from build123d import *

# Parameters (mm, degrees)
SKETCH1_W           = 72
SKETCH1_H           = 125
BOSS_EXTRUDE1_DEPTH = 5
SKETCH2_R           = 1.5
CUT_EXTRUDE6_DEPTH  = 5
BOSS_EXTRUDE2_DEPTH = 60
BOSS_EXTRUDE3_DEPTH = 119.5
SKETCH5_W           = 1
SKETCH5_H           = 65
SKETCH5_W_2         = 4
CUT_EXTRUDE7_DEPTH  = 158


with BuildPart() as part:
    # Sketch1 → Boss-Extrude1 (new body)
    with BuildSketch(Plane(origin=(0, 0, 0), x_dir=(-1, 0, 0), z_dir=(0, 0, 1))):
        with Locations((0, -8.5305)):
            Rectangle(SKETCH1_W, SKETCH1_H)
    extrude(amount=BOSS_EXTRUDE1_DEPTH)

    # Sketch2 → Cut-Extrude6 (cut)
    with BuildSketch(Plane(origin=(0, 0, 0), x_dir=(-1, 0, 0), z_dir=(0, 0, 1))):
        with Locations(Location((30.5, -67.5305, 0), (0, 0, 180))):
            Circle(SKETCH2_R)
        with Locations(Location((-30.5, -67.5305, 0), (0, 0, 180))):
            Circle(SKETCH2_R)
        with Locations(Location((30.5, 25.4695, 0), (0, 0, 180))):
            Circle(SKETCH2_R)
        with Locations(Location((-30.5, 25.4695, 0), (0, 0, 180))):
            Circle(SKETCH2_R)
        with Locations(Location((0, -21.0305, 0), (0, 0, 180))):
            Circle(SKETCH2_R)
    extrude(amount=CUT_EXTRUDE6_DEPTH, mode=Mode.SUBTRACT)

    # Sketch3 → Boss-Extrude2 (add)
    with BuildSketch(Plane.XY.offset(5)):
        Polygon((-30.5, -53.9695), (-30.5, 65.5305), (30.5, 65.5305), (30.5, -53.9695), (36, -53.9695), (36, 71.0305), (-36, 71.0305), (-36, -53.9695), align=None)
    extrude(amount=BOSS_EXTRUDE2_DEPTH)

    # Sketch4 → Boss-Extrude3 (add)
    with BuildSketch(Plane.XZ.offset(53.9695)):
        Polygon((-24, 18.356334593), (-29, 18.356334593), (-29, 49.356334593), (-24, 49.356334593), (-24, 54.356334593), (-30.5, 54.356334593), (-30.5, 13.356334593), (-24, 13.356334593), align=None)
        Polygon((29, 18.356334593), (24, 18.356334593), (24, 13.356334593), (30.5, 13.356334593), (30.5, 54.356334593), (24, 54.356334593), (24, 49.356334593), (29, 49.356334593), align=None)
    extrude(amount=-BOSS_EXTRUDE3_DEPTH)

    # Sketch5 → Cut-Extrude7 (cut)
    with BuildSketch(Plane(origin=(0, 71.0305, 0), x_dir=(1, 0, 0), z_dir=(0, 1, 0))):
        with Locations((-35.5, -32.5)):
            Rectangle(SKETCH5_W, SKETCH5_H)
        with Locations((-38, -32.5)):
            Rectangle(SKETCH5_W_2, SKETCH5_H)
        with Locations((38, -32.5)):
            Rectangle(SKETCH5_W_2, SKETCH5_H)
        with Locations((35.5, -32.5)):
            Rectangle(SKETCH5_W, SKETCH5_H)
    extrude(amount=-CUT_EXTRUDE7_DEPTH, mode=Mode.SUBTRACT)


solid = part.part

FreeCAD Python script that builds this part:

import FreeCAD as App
import Part
import Sketcher

V = App.Vector

doc = App.newDocument("Part")
body = doc.addObject("PartDesign::Body", "Body")

sketch1 = body.newObject("Sketcher::SketchObject", "Sketch")
sketch1.AttachmentSupport = (doc.getObject("XY_Plane"), [""])
sketch1.MapMode = "FlatFace"
sketch1.addGeometry([
    Part.LineSegment(V(36, -54, 0), V(36, 71, 0)),
    Part.LineSegment(V(36, 71, 0), V(-36, 71, 0)),
    Part.LineSegment(V(-36, 71, 0), V(-36, -54, 0)),
    Part.LineSegment(V(-36, -54, 0), V(36, -54, 0)),
], False)
sketch1.addConstraint([
    Sketcher.Constraint("Coincident", 0, 2, 1, 1),
    Sketcher.Constraint("Coincident", 1, 2, 2, 1),
    Sketcher.Constraint("Coincident", 2, 2, 3, 1),
    Sketcher.Constraint("Coincident", 3, 2, 0, 1),
    Sketcher.Constraint("Vertical", 0),
    Sketcher.Constraint("Horizontal", 1),
    Sketcher.Constraint("Vertical", 2),
    Sketcher.Constraint("Horizontal", 3),
    Sketcher.Constraint("DistanceX", 1, 2, 1, 1, 72.0),
    Sketcher.Constraint("DistanceY", 0, 1, 0, 2, 125.0),
    Sketcher.Constraint("DistanceX", -1, 1, 0, 2, 36.0),
    Sketcher.Constraint("DistanceY", -1, 1, 0, 2, 71.0305),
])
pad1 = body.newObject("PartDesign::Pad", "Pad")
pad1.Profile = sketch1
pad1.Length = 5

sketch2 = body.newObject("Sketcher::SketchObject", "Sketch001")
sketch2.AttachmentSupport = (doc.getObject("XY_Plane"), [""])
sketch2.MapMode = "FlatFace"
sketch2.addGeometry([
    Part.Circle(V(-30.5, 67.5, 0), V(0, 0, 1), 1.5),
    Part.Circle(V(30.5, 67.5, 0), V(0, 0, 1), 1.5),
    Part.Circle(V(-30.5, -25.5, 0), V(0, 0, 1), 1.5),
    Part.Circle(V(30.5, -25.5, 0), V(0, 0, 1), 1.5),
    Part.Circle(V(0, 21, 0), V(0, 0, 1), 1.5),
], False)
sketch2.addConstraint([
    Sketcher.Constraint("Equal", 0, 1),
    Sketcher.Constraint("Equal", 1, 2),
    Sketcher.Constraint("Equal", 2, 3),
    Sketcher.Constraint("Equal", 3, 4),
    Sketcher.Constraint("Symmetric", 0, 3, 1, 3, -2),
    Sketcher.Constraint("Symmetric", 2, 3, 3, 3, -2),
    Sketcher.Constraint("PointOnObject", 4, 3, -2),
    Sketcher.Constraint("Vertical", 0, 3, 2, 3),
    Sketcher.Constraint("Diameter", 0, 3.0),
    Sketcher.Constraint("DistanceX", 0, 3, 1, 3, 61.0),
    Sketcher.Constraint("DistanceY", 2, 3, 0, 3, 93.0),
    Sketcher.Constraint("DistanceY", 4, 3, 0, 3, 46.5),
    Sketcher.Constraint("DistanceY", -1, 1, 0, 3, 67.5305),
])
pocket1 = body.newObject("PartDesign::Pocket", "Pocket")
pocket1.Profile = sketch2
pocket1.Length = 5
pocket1.Reversed = True

sketch3 = body.newObject("Sketcher::SketchObject", "Sketch002")
sketch3.AttachmentSupport = (doc.getObject("XY_Plane"), [""])
sketch3.MapMode = "FlatFace"
sketch3.AttachmentOffset = App.Placement(V(0, 0, 5), App.Rotation())
sketch3.addGeometry([
    Part.LineSegment(V(-30, -54, 0), V(-30, 66, 0)),
    Part.LineSegment(V(-30, 66, 0), V(30, 66, 0)),
    Part.LineSegment(V(30, 66, 0), V(30, -54, 0)),
    Part.LineSegment(V(30, -54, 0), V(36, -54, 0)),
    Part.LineSegment(V(36, -54, 0), V(36, 71, 0)),
    Part.LineSegment(V(36, 71, 0), V(-36, 71, 0)),
    Part.LineSegment(V(-36, 71, 0), V(-36, -54, 0)),
    Part.LineSegment(V(-36, -54, 0), V(-30, -54, 0)),
], False)
sketch3.addConstraint([
    Sketcher.Constraint("Coincident", 0, 2, 1, 1),
    Sketcher.Constraint("Coincident", 1, 2, 2, 1),
    Sketcher.Constraint("Coincident", 2, 2, 3, 1),
    Sketcher.Constraint("Coincident", 3, 2, 4, 1),
    Sketcher.Constraint("Coincident", 4, 2, 5, 1),
    Sketcher.Constraint("Coincident", 5, 2, 6, 1),
    Sketcher.Constraint("Coincident", 6, 2, 7, 1),
    Sketcher.Constraint("Coincident", 7, 2, 0, 1),
    Sketcher.Constraint("Vertical", 0),
    Sketcher.Constraint("Horizontal", 1),
    Sketcher.Constraint("Vertical", 2),
    Sketcher.Constraint("Horizontal", 3),
    Sketcher.Constraint("Vertical", 4),
    Sketcher.Constraint("Horizontal", 5),
    Sketcher.Constraint("Vertical", 6),
    Sketcher.Constraint("Horizontal", 7),
    Sketcher.Constraint("Symmetric", 3, 2, 6, 2, -2),
    Sketcher.Constraint("Equal", 3, 7),
    Sketcher.Constraint("DistanceX", 1, 1, 1, 2, 61.0),
    Sketcher.Constraint("DistanceX", 5, 2, 5, 1, 72.0),
    Sketcher.Constraint("DistanceY", 4, 1, 4, 2, 125.0),
    Sketcher.Constraint("DistanceY", 0, 1, 0, 2, 119.5),
    Sketcher.Constraint("DistanceY", -1, 1, 0, 2, 65.5305),
])
pad2 = body.newObject("PartDesign::Pad", "Pad001")
pad2.Profile = sketch3
pad2.Length = 60

sketch4 = body.newObject("Sketcher::SketchObject", "Sketch003")
sketch4.AttachmentSupport = (doc.getObject("XZ_Plane"), [""])
sketch4.MapMode = "FlatFace"
sketch4.AttachmentOffset = App.Placement(V(0, 0, 53.9695), App.Rotation())
sketch4.addGeometry([
    Part.LineSegment(V(-24, 18, 0), V(-29, 18, 0)),
    Part.LineSegment(V(-29, 18, 0), V(-29, 49, 0)),
    Part.LineSegment(V(-29, 49, 0), V(-24, 49, 0)),
    Part.LineSegment(V(-24, 49, 0), V(-24, 54, 0)),
    Part.LineSegment(V(-24, 54, 0), V(-30, 54, 0)),
    Part.LineSegment(V(-30, 54, 0), V(-30, 13, 0)),
    Part.LineSegment(V(-30, 13, 0), V(-24, 13, 0)),
    Part.LineSegment(V(-24, 13, 0), V(-24, 18, 0)),
    Part.LineSegment(V(29, 18, 0), V(24, 18, 0)),
    Part.LineSegment(V(24, 18, 0), V(24, 13, 0)),
    Part.LineSegment(V(24, 13, 0), V(30, 13, 0)),
    Part.LineSegment(V(30, 13, 0), V(30, 54, 0)),
    Part.LineSegment(V(30, 54, 0), V(24, 54, 0)),
    Part.LineSegment(V(24, 54, 0), V(24, 49, 0)),
    Part.LineSegment(V(24, 49, 0), V(29, 49, 0)),
    Part.LineSegment(V(29, 49, 0), V(29, 18, 0)),
], False)
sketch4.addConstraint([
    Sketcher.Constraint("Coincident", 0, 2, 1, 1),
    Sketcher.Constraint("Coincident", 1, 2, 2, 1),
    Sketcher.Constraint("Coincident", 2, 2, 3, 1),
    Sketcher.Constraint("Coincident", 3, 2, 4, 1),
    Sketcher.Constraint("Coincident", 4, 2, 5, 1),
    Sketcher.Constraint("Coincident", 5, 2, 6, 1),
    Sketcher.Constraint("Coincident", 6, 2, 7, 1),
    Sketcher.Constraint("Coincident", 7, 2, 0, 1),
    Sketcher.Constraint("Coincident", 8, 2, 9, 1),
    Sketcher.Constraint("Coincident", 9, 2, 10, 1),
    Sketcher.Constraint("Coincident", 10, 2, 11, 1),
    Sketcher.Constraint("Coincident", 11, 2, 12, 1),
    Sketcher.Constraint("Coincident", 12, 2, 13, 1),
    Sketcher.Constraint("Coincident", 13, 2, 14, 1),
    Sketcher.Constraint("Coincident", 14, 2, 15, 1),
    Sketcher.Constraint("Coincident", 15, 2, 8, 1),
    Sketcher.Constraint("Horizontal", 0),
    Sketcher.Constraint("Vertical", 1),
    Sketcher.Constraint("Horizontal", 2),
    Sketcher.Constraint("Vertical", 3),
    Sketcher.Constraint("Horizontal", 4),
    Sketcher.Constraint("Vertical", 5),
    Sketcher.Constraint("Horizontal", 6),
    Sketcher.Constraint("Vertical", 7),
    Sketcher.Constraint("Horizontal", 8),
    Sketcher.Constraint("Vertical", 9),
    Sketcher.Constraint("Horizontal", 10),
    Sketcher.Constraint("Vertical", 11),
    Sketcher.Constraint("Horizontal", 12),
    Sketcher.Constraint("Vertical", 13),
    Sketcher.Constraint("Horizontal", 14),
    Sketcher.Constraint("Vertical", 15),
    Sketcher.Constraint("Symmetric", 7, 2, 8, 2, -2),
    Sketcher.Constraint("Symmetric", 5, 2, 10, 2, -2),
    Sketcher.Constraint("Symmetric", 3, 2, 12, 2, -2),
    Sketcher.Constraint("Symmetric", 1, 2, 14, 2, -2),
    Sketcher.Constraint("Vertical", 3, 2, 6, 2),
    Sketcher.Constraint("Equal", 14, 3),
    Sketcher.Constraint("Equal", 3, 7),
    Sketcher.Constraint("DistanceX", 0, 2, 0, 1, 5.0),
    Sketcher.Constraint("DistanceY", 1, 1, 1, 2, 31.0),
    Sketcher.Constraint("DistanceX", 4, 2, 4, 1, 6.5),
    Sketcher.Constraint("DistanceX", 0, 2, -1, 1, 29.0),
    Sketcher.Constraint("DistanceY", -1, 1, 0, 2, 18.356335),
])
pad3 = body.newObject("PartDesign::Pad", "Pad002")
pad3.Profile = sketch4
pad3.Length = 119.5
pad3.Reversed = True

sketch5 = body.newObject("Sketcher::SketchObject", "Sketch004")
sketch5.AttachmentSupport = (doc.getObject("XZ_Plane"), [""])
sketch5.MapMode = "FlatFace"
sketch5.AttachmentOffset = App.Placement(V(0, 0, -71.0305), App.Rotation())
sketch5.addGeometry([
    Part.LineSegment(V(-35, 65, 0), V(-35, 0, 0)),
    Part.LineSegment(V(-35, 0, 0), V(-40, 0, 0)),
    Part.LineSegment(V(-40, 0, 0), V(-40, 65, 0)),
    Part.LineSegment(V(-40, 65, 0), V(-35, 65, 0)),
    Part.LineSegment(V(40, 65, 0), V(40, 0, 0)),
    Part.LineSegment(V(40, 0, 0), V(35, 0, 0)),
    Part.LineSegment(V(35, 0, 0), V(35, 65, 0)),
    Part.LineSegment(V(35, 65, 0), V(40, 65, 0)),
], False)
sketch5.addConstraint([
    Sketcher.Constraint("Coincident", 0, 2, 1, 1),
    Sketcher.Constraint("Coincident", 1, 2, 2, 1),
    Sketcher.Constraint("Coincident", 2, 2, 3, 1),
    Sketcher.Constraint("Coincident", 3, 2, 0, 1),
    Sketcher.Constraint("Coincident", 4, 2, 5, 1),
    Sketcher.Constraint("Coincident", 5, 2, 6, 1),
    Sketcher.Constraint("Coincident", 6, 2, 7, 1),
    Sketcher.Constraint("Coincident", 7, 2, 4, 1),
    Sketcher.Constraint("Vertical", 0),
    Sketcher.Constraint("Horizontal", 1),
    Sketcher.Constraint("Vertical", 2),
    Sketcher.Constraint("Horizontal", 3),
    Sketcher.Constraint("Vertical", 4),
    Sketcher.Constraint("Horizontal", 5),
    Sketcher.Constraint("Vertical", 6),
    Sketcher.Constraint("Horizontal", 7),
    Sketcher.Constraint("Symmetric", 1, 2, 4, 2, -1, 1),
    Sketcher.Constraint("Symmetric", 0, 2, 5, 2, -2),
    Sketcher.Constraint("Horizontal", 3, 2, 6, 2),
    Sketcher.Constraint("DistanceX", 1, 2, 1, 1, 5.0),
    Sketcher.Constraint("DistanceY", 0, 2, 0, 1, 65.0),
    Sketcher.Constraint("DistanceX", 0, 2, -1, 1, 35.0),
])
pocket2 = body.newObject("PartDesign::Pocket", "Pocket001")
pocket2.Profile = sketch5
pocket2.Length = 158
pocket2.Reversed = True

doc.recompute()
